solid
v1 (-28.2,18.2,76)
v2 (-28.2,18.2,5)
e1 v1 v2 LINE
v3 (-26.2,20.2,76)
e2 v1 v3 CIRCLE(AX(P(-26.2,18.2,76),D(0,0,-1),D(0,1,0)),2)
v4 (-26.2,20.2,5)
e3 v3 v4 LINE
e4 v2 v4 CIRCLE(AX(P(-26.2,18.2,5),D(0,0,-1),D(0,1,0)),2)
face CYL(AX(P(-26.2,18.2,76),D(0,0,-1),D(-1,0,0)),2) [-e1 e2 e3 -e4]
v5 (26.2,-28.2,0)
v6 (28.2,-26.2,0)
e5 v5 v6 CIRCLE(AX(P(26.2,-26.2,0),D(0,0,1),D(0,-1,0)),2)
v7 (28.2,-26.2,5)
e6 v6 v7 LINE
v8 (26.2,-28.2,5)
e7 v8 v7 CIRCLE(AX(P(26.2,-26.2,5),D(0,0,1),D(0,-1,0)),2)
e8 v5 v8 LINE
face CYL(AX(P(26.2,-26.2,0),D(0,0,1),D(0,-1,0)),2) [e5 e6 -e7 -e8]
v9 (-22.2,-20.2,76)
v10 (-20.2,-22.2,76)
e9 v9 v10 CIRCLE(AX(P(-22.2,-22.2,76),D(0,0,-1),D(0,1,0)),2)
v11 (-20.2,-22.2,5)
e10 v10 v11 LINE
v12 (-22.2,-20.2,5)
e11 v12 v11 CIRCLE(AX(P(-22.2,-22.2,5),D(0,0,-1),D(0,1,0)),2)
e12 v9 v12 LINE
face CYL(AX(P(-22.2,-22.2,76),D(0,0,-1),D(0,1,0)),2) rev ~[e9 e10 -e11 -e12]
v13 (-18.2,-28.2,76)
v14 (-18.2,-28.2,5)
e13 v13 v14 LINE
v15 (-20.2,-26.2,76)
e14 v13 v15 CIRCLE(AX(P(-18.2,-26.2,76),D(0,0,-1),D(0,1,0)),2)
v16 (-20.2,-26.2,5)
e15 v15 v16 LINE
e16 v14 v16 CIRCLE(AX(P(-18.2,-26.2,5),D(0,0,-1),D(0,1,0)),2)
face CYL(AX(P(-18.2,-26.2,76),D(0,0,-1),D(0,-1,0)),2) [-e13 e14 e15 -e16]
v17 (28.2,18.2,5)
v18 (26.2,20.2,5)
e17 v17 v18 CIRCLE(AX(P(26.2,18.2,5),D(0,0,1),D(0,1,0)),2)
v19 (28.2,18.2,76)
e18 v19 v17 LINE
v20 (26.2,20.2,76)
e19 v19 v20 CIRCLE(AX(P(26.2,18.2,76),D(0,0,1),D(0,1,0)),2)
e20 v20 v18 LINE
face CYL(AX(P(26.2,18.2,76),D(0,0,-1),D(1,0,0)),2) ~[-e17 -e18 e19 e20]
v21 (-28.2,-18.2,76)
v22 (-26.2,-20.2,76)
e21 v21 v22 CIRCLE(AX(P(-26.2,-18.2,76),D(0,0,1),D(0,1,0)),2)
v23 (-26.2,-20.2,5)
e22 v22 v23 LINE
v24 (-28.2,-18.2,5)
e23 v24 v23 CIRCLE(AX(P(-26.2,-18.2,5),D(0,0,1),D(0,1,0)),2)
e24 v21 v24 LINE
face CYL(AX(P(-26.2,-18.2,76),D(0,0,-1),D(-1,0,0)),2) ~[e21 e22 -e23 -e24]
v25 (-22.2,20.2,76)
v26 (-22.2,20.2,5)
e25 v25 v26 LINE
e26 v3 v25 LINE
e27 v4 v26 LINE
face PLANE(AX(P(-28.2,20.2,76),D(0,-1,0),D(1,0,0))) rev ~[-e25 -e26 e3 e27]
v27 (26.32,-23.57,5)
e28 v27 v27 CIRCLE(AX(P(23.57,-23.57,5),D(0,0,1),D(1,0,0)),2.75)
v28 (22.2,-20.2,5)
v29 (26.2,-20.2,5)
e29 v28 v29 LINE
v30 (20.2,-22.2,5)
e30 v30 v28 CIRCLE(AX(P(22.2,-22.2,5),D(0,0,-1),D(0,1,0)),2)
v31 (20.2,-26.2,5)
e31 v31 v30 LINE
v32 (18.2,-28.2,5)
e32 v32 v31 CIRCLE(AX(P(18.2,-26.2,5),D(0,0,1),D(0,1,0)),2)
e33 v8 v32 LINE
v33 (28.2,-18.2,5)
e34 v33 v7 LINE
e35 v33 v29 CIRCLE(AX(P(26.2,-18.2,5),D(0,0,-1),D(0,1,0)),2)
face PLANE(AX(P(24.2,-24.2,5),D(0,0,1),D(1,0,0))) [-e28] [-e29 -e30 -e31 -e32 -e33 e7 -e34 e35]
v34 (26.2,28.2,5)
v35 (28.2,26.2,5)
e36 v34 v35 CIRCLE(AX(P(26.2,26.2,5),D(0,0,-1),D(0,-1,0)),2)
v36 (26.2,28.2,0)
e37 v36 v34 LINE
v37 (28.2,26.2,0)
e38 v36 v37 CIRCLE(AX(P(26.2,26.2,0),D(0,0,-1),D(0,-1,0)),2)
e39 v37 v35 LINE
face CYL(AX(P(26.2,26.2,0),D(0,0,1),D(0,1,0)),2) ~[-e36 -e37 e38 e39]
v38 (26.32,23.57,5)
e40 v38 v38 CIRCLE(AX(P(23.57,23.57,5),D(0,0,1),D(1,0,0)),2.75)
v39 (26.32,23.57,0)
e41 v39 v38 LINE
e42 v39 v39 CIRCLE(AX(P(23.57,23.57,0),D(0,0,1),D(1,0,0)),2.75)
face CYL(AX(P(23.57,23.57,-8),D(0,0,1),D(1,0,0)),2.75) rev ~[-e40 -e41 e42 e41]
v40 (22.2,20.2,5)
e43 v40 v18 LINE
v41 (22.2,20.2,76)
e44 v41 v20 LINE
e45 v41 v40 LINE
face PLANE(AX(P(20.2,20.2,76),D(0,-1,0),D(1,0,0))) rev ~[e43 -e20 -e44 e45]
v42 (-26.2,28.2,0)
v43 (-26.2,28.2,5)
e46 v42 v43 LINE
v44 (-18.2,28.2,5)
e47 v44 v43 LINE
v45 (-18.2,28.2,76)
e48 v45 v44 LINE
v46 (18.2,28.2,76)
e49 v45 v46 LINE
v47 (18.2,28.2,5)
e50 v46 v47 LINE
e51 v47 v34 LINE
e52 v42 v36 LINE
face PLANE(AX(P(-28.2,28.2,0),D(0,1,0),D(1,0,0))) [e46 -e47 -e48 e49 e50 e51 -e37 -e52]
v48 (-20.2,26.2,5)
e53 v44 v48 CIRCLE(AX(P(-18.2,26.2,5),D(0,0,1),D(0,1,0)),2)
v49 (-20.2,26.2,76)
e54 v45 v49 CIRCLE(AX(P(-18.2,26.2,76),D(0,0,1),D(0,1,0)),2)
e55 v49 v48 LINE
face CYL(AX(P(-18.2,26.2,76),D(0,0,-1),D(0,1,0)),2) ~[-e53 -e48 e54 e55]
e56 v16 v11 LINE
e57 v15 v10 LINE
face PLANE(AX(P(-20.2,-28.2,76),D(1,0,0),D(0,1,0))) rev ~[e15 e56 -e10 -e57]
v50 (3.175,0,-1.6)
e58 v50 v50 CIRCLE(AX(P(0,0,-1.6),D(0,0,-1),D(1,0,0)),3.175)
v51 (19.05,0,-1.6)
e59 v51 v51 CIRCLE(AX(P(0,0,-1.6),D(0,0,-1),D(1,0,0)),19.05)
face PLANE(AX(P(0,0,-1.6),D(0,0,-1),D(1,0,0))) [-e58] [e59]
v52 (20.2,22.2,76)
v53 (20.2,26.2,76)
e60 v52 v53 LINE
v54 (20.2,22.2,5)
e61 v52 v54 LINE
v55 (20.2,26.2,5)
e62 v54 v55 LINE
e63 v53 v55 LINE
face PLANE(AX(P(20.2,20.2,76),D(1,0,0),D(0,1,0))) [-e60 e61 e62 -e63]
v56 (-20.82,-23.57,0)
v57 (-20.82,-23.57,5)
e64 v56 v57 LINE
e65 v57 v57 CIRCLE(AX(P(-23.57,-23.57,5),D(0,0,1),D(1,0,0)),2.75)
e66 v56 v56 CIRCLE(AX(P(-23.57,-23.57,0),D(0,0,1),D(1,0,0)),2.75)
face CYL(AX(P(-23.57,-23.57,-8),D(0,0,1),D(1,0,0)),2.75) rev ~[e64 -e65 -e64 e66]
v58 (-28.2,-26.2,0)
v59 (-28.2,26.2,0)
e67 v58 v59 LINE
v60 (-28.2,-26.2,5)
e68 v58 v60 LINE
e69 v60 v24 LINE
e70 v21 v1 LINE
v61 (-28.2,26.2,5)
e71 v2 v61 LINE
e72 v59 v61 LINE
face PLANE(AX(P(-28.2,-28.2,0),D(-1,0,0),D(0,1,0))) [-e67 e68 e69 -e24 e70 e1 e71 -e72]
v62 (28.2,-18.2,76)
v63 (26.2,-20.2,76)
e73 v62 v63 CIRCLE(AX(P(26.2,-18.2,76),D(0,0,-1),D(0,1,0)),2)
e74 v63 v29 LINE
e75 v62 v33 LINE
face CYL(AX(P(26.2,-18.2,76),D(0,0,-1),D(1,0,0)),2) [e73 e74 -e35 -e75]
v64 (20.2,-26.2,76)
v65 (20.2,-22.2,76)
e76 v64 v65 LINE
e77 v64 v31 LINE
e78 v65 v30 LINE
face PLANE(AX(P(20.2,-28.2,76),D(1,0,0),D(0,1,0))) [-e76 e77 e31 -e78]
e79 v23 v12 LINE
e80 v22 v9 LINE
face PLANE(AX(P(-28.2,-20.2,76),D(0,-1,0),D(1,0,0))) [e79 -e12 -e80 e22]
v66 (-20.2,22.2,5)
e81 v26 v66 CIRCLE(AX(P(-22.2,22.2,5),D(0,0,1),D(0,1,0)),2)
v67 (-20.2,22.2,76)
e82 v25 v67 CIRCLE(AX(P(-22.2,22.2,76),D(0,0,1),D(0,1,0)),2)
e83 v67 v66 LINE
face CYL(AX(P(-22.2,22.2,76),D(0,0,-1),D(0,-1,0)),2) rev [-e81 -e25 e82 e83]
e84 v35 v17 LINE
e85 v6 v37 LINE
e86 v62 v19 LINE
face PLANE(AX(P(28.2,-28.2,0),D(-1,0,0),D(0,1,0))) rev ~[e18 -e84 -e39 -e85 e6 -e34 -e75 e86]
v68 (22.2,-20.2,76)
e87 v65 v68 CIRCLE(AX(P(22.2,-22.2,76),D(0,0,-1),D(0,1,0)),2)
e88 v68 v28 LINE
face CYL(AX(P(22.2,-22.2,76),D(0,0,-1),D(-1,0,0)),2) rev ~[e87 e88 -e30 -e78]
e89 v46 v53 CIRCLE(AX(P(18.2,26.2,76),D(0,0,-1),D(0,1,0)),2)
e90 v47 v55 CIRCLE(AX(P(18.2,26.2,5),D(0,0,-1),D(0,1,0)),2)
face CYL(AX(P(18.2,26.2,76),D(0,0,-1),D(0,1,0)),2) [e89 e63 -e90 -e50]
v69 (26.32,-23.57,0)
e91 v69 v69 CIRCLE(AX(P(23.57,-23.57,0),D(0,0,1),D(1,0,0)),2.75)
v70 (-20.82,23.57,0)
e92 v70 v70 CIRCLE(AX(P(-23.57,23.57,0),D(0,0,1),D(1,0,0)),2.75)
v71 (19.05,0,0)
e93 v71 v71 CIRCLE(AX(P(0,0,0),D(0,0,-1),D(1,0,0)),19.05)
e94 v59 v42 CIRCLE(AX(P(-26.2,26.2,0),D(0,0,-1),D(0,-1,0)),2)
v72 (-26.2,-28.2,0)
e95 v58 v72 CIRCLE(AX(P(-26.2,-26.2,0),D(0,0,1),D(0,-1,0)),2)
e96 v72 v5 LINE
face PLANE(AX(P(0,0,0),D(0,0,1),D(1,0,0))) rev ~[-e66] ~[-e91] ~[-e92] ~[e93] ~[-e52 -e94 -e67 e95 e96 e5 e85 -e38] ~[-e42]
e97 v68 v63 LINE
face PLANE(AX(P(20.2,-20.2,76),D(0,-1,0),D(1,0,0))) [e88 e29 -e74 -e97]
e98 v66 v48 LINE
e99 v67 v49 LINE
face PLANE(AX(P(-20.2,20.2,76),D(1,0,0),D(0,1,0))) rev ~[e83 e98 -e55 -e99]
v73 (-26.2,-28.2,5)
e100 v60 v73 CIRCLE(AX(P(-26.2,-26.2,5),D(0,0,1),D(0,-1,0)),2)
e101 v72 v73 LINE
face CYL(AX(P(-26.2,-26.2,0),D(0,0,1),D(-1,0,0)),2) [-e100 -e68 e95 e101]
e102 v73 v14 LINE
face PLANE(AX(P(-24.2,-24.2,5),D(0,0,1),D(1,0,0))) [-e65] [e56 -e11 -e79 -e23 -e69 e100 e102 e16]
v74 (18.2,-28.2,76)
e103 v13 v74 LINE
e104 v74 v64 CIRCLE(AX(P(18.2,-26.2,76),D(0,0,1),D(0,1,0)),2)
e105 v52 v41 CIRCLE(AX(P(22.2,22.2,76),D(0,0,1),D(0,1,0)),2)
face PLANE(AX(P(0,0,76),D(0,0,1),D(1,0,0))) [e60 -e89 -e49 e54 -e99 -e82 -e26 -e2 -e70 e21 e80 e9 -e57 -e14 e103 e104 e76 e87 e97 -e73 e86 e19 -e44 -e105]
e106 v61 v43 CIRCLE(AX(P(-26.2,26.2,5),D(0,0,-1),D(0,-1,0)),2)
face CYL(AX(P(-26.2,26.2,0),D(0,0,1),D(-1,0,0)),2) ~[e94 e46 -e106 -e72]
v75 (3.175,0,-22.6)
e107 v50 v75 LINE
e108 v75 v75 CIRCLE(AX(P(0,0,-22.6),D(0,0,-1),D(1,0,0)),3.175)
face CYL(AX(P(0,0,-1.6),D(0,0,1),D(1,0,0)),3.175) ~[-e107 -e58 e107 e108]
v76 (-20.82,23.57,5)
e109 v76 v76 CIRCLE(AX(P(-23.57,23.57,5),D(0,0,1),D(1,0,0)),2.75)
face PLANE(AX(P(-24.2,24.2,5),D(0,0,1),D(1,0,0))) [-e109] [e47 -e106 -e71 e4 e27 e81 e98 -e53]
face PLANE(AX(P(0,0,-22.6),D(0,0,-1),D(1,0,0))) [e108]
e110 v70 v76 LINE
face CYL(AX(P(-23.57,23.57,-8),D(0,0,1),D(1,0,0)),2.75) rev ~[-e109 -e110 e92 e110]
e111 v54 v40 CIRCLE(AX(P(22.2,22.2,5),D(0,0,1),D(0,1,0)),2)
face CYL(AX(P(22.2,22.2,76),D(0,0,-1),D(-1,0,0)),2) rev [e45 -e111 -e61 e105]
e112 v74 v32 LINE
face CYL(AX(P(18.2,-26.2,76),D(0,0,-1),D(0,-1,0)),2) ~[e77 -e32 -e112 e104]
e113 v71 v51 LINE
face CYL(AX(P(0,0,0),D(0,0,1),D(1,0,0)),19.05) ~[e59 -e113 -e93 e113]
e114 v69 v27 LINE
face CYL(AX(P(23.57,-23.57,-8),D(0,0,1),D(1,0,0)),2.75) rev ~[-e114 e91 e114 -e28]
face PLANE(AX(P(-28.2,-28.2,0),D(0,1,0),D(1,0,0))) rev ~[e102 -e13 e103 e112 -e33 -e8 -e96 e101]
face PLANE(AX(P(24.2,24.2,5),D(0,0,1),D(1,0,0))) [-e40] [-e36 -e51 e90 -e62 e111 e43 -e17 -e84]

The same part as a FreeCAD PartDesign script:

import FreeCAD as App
import Part
import Sketcher

V = App.Vector


def edges_at(feature, points):
    """Names of the edges that pass closest to the given points."""
    edges = feature.Shape.Edges
    near = lambda p: min(range(len(edges)), key=lambda i: edges[i].distToShape(Part.Vertex(*p))[0])
    return sorted({f"Edge{near(p) + 1}" for p in points})

doc = App.newDocument("Part")
body = doc.addObject("PartDesign::Body", "Body")

# Sketch on XY plane
sketch1 = doc.addObject("Sketcher::SketchObject", "Sketch")
body.addObject(sketch1)
sketch1.AttachmentSupport = (doc.XY_Plane, [""])
sketch1.MapMode = "FlatFace"
sketch1.addGeometry([
    Part.LineSegment(V(-28.2, 28.2, 0), V(-28.2, -28.2, 0)),
    Part.LineSegment(V(-28.2, -28.2, 0), V(28.2, -28.2, 0)),
    Part.LineSegment(V(28.2, -28.2, 0), V(28.2, 28.2, 0)),
    Part.LineSegment(V(28.2, 28.2, 0), V(-28.2, 28.2, 0)),
], False)
sketch1.addConstraint([
    Sketcher.Constraint("Coincident", 0, 2, 1, 1),
    Sketcher.Constraint("Coincident", 1, 2, 2, 1),
    Sketcher.Constraint("Coincident", 2, 2, 3, 1),
    Sketcher.Constraint("Coincident", 3, 2, 0, 1),
    Sketcher.Constraint("Vertical", 0),
    Sketcher.Constraint("Horizontal", 1),
    Sketcher.Constraint("Vertical", 2),
    Sketcher.Constraint("Horizontal", 3),
    Sketcher.Constraint("Symmetric", 0, 2, 2, 2, -1, 1),
    Sketcher.Constraint("Equal", 3, 0),
    Sketcher.Constraint("DistanceX", 1, 1, 1, 2, 56.4),
])
pad1 = doc.addObject("PartDesign::Pad", "Pad")
body.addObject(pad1)
pad1.Profile = sketch1
pad1.Length = 76

# Sketch on XY plane
sketch2 = doc.addObject("Sketcher::SketchObject", "Sketch001")
body.addObject(sketch2)
sketch2.AttachmentSupport = (doc.XY_Plane, [""])
sketch2.MapMode = "FlatFace"
sketch2.addGeometry([
    Part.Circle(V(23.57, 23.57, 0), V(0, 0, 1), 2.75),
    Part.Circle(V(-23.57, 23.57, 0), V(0, 0, 1), 2.75),
    Part.Circle(V(-23.57, -23.57, 0), V(0, 0, 1), 2.75),
    Part.Circle(V(23.57, -23.57, 0), V(0, 0, 1), 2.75),
], False)
sketch2.addConstraint([
    Sketcher.Constraint("Equal", 0, 1),
    Sketcher.Constraint("Equal", 1, 2),
    Sketcher.Constraint("Equal", 2, 3),
    Sketcher.Constraint("Symmetric", 0, 3, 2, 3, -1, 1),
    Sketcher.Constraint("Symmetric", 1, 3, 3, 3, -1, 1),
    Sketcher.Constraint("Symmetric", 0, 3, 1, 3, -2),
    Sketcher.Constraint("Diameter", 0, 5.5),
    Sketcher.Constraint("DistanceX", -1, 1, 0, 3, 23.57),
    Sketcher.Constraint("DistanceY", -1, 1, 0, 3, 23.57),
])
doc.recompute()
hole = doc.addObject("PartDesign::Hole", "Hole")
body.addObject(hole)
hole.Profile = sketch2
hole.ThreadType = "None"
hole.Diameter = 5.5
hole.DepthType = "Dimension"
hole.Depth = 8
hole.DrillPoint = "Angled"
hole.DrillPointAngle = 118
hole.Reversed = True

# Sketch on XY plane
sketch3 = doc.addObject("Sketcher::SketchObject", "Sketch002")
body.addObject(sketch3)
sketch3.AttachmentSupport = (doc.XY_Plane, [""])
sketch3.MapMode = "FlatFace"
sketch3.addGeometry(Part.Circle(V(0, 0, 0), V(0, 0, 1), 19.05), False)
sketch3.addConstraint([
    Sketcher.Constraint("Coincident", 0, 3, -1, 1),
    Sketcher.Constraint("Diameter", 0, 38.1),
])
pad2 = doc.addObject("PartDesign::Pad", "Pad001")
body.addObject(pad2)
pad2.Profile = sketch3
pad2.Length = 1.6
pad2.Reversed = True

# Sketch on XY plane
sketch4 = doc.addObject("Sketcher::SketchObject", "Sketch003")
body.addObject(sketch4)
sketch4.AttachmentSupport = (doc.XY_Plane, [""])
sketch4.MapMode = "FlatFace"
sketch4.AttachmentOffset = App.Placement(V(0, 0, -1.6), App.Rotation())
sketch4.addGeometry(Part.Circle(V(0, 0, 0), V(0, 0, 1), 3.175), False)
sketch4.addConstraint([
    Sketcher.Constraint("Coincident", 0, 3, -1, 1),
    Sketcher.Constraint("Diameter", 0, 6.35),
])
pad3 = doc.addObject("PartDesign::Pad", "Pad002")
body.addObject(pad3)
pad3.Profile = sketch4
pad3.Length = 21
pad3.Reversed = True

# Sketch on XY plane
sketch5 = doc.addObject("Sketcher::SketchObject", "Sketch004")
body.addObject(sketch5)
sketch5.AttachmentSupport = (doc.XY_Plane, [""])
sketch5.MapMode = "FlatFace"
sketch5.AttachmentOffset = App.Placement(V(0, 0, 76), App.Rotation())
sketch5.addGeometry([
    Part.LineSegment(V(-28.2, -20.2, 0), V(-28.2, -28.2, 0)),  # 0
    Part.LineSegment(V(-28.2, -28.2, 0), V(-20.2, -28.2, 0)),  # 1
    Part.LineSegment(V(-20.2, -28.2, 0), V(-20.2, -20.2, 0)),  # 2
    Part.LineSegment(V(-20.2, -20.2, 0), V(-28.2, -20.2, 0)),  # 3
    Part.LineSegment(V(20.2, -20.2, 0), V(20.2, -28.2, 0)),  # 4
    Part.LineSegment(V(20.2, -28.2, 0), V(28.2, -28.2, 0)),  # 5
    Part.LineSegment(V(28.2, -28.2, 0), V(28.2, -20.2, 0)),  # 6
    Part.LineSegment(V(28.2, -20.2, 0), V(20.2, -20.2, 0)),  # 7
    Part.LineSegment(V(20.2, 28.2, 0), V(20.2, 20.2, 0)),  # 8
    Part.LineSegment(V(20.2, 20.2, 0), V(28.2, 20.2, 0)),  # 9
    Part.LineSegment(V(28.2, 20.2, 0), V(28.2, 28.2, 0)),  # 10
    Part.LineSegment(V(28.2, 28.2, 0), V(20.2, 28.2, 0)),  # 11
    Part.LineSegment(V(-28.2, 28.2, 0), V(-28.2, 20.2, 0)),  # 12
    Part.LineSegment(V(-28.2, 20.2, 0), V(-20.2, 20.2, 0)),  # 13
    Part.LineSegment(V(-20.2, 20.2, 0), V(-20.2, 28.2, 0)),  # 14
    Part.LineSegment(V(-20.2, 28.2, 0), V(-28.2, 28.2, 0)),  # 15
], False)
sketch5.addConstraint([
    Sketcher.Constraint("Coincident", 0, 2, 1, 1),
    Sketcher.Constraint("Coincident", 1, 2, 2, 1),
    Sketcher.Constraint("Coincident", 2, 2, 3, 1),
    Sketcher.Constraint("Coincident", 3, 2, 0, 1),
    Sketcher.Constraint("Coincident", 4, 2, 5, 1),
    Sketcher.Constraint("Coincident", 5, 2, 6, 1),
    Sketcher.Constraint("Coincident", 6, 2, 7, 1),
    Sketcher.Constraint("Coincident", 7, 2, 4, 1),
    Sketcher.Constraint("Coincident", 8, 2, 9, 1),
    Sketcher.Constraint("Coincident", 9, 2, 10, 1),
    Sketcher.Constraint("Coincident", 10, 2, 11, 1),
    Sketcher.Constraint("Coincident", 11, 2, 8, 1),
    Sketcher.Constraint("Coincident", 12, 2, 13, 1),
    Sketcher.Constraint("Coincident", 13, 2, 14, 1),
    Sketcher.Constraint("Coincident", 14, 2, 15, 1),
    Sketcher.Constraint("Coincident", 15, 2, 12, 1),
    Sketcher.Constraint("Vertical", 0),
    Sketcher.Constraint("Horizontal", 1),
    Sketcher.Constraint("Vertical", 2),
    Sketcher.Constraint("Horizontal", 3),
    Sketcher.Constraint("Vertical", 4),
    Sketcher.Constraint("Horizontal", 5),
    Sketcher.Constraint("Vertical", 6),
    Sketcher.Constraint("Horizontal", 7),
    Sketcher.Constraint("Vertical", 8),
    Sketcher.Constraint("Horizontal", 9),
    Sketcher.Constraint("Vertical", 10),
    Sketcher.Constraint("Horizontal", 11),
    Sketcher.Constraint("Vertical", 12),
    Sketcher.Constraint("Horizontal", 13),
    Sketcher.Constraint("Vertical", 14),
    Sketcher.Constraint("Horizontal", 15),
    Sketcher.Constraint("Symmetric", 2, 2, 8, 2, -1, 1),
    Sketcher.Constraint("Symmetric", 0, 2, 10, 2, -1, 1),
    Sketcher.Constraint("Symmetric", 6, 2, 12, 2, -1, 1),
    Sketcher.Constraint("Symmetric", 4, 2, 14, 2, -1, 1),
    Sketcher.Constraint("Symmetric", 1, 2, 4, 2, -2),
    Sketcher.Constraint("Symmetric", 3, 2, 6, 2, -2),
    Sketcher.Constraint("Equal", 15, 0),
    Sketcher.Constraint("DistanceX", 1, 1, 1, 2, 8.0),
    Sketcher.Constraint("DistanceX", 0, 2, -1, 1, 28.2),
    Sketcher.Constraint("DistanceY", 0, 2, -1, 1, 28.2),
])
pocket1 = doc.addObject("PartDesign::Pocket", "Pocket")
body.addObject(pocket1)
pocket1.Profile = sketch5
pocket1.Length = 71
doc.recompute()

fillet = doc.addObject("PartDesign::Fillet", "Fillet")
body.addObject(fillet)
fillet.Base = (pocket1, edges_at(pocket1, [(-28.2, 28.2, 2.5)]))
fillet.Radius = 2
doc.recompute()

fillet2 = doc.addObject("PartDesign::Fillet", "Fillet001")
body.addObject(fillet2)
fillet2.Base = (fillet, edges_at(fillet, [
    (-28.2, -28.2, 2.5),
    (-20.2, -20.2, 40.5),
    (-20.2, -28.2, 40.5),
    (-28.2, -20.2, 40.5),
    (28.2, -28.2, 2.5),
    (20.2, -20.2, 40.5),
    (28.2, -20.2, 40.5),
    (20.2, -28.2, 40.5),
    (28.2, 28.2, 2.5),
    (20.2, 20.2, 40.5),
    (20.2, 28.2, 40.5),
    (28.2, 20.2, 40.5),
    (-20.2, 20.2, 40.5),
    (-28.2, 20.2, 40.5),
    (-20.2, 28.2, 40.5),
]))
fillet2.Radius = 2

doc.recompute()
